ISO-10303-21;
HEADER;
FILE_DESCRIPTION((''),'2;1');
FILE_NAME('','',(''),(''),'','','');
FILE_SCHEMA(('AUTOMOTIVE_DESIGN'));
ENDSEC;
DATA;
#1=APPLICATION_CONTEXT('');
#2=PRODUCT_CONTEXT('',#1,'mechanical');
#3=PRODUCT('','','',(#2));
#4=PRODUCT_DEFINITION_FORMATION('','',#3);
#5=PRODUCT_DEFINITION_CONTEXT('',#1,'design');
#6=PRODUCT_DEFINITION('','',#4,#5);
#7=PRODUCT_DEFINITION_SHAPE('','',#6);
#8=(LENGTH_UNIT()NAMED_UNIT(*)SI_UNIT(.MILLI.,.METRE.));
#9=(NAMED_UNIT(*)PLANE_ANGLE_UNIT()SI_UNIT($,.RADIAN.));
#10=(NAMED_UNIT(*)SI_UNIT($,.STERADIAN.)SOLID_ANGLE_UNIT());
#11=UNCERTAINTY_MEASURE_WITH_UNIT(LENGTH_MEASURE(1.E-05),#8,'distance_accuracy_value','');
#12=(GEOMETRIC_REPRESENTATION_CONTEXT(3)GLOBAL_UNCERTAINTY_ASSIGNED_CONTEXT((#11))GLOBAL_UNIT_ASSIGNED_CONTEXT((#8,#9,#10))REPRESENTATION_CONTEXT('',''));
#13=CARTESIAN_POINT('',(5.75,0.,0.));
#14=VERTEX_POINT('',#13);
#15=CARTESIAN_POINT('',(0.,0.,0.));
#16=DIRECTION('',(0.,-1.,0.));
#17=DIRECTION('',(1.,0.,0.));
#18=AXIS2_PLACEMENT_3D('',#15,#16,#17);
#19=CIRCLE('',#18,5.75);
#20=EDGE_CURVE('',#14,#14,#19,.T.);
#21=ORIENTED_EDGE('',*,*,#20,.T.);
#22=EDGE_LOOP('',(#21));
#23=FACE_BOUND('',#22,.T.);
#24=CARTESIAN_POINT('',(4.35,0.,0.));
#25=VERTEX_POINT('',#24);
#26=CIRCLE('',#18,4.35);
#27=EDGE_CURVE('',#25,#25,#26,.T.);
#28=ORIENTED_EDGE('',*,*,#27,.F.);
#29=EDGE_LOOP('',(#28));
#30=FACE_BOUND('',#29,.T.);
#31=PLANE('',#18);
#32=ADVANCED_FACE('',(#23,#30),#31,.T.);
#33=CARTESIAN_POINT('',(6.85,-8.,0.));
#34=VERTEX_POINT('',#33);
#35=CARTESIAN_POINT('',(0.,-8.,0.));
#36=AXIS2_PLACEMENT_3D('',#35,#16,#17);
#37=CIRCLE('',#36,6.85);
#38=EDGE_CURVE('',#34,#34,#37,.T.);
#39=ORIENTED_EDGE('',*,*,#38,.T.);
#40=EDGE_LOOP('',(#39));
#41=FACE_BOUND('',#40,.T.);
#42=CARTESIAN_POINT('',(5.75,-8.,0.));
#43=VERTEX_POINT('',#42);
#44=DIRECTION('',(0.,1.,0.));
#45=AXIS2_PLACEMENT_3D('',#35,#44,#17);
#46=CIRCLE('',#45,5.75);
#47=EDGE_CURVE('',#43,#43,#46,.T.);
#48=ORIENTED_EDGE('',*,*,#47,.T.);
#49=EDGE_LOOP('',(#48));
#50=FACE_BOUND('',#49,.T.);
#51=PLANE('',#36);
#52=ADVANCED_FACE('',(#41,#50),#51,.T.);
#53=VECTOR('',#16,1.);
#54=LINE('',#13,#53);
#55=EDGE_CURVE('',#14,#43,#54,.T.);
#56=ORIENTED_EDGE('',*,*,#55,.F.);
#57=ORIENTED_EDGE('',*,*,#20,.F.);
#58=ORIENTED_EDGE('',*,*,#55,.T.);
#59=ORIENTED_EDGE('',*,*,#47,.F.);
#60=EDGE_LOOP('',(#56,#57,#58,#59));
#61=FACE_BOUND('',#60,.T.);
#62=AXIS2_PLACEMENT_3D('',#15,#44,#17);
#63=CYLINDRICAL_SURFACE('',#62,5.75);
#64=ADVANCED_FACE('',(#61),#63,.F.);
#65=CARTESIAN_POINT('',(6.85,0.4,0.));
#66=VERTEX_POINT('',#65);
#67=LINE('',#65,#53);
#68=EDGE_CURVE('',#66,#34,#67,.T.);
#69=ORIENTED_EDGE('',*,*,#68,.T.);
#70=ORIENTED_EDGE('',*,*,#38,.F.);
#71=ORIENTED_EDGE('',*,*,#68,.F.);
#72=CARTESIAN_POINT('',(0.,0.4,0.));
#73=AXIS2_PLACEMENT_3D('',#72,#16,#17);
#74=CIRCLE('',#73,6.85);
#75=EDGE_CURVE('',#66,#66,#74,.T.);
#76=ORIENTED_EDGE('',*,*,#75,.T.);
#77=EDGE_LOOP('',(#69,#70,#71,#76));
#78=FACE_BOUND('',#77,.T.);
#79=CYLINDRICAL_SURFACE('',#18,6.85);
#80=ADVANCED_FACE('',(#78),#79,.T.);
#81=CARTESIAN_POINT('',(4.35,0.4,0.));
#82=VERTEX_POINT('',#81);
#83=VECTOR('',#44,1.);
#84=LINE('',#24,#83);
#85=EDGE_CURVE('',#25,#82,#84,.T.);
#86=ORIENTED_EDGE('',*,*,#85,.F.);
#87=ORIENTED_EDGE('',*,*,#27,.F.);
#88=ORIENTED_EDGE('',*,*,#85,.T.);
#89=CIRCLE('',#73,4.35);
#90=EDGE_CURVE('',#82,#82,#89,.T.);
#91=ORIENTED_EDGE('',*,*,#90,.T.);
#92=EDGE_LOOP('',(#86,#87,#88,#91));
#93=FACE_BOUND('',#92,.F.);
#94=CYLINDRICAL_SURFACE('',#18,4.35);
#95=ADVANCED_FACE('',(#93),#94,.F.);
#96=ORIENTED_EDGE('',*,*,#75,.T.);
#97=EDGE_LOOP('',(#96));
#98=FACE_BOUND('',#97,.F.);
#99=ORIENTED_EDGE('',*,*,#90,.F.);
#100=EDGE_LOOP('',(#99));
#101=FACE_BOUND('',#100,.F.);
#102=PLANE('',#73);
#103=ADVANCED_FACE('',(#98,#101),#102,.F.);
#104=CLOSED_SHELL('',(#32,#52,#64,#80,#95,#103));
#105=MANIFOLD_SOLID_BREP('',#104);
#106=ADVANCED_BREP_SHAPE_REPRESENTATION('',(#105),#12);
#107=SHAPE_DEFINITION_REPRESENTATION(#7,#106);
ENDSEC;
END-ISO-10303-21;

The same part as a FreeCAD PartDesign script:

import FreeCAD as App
import Part
import Sketcher
from FreeCAD import Vector
Q = App.Units.Quantity

doc = App.newDocument("Part")
body = doc.addObject("PartDesign::Body", "Body")

# Sketch on XZ plane
sketch1 = body.newObject("Sketcher::SketchObject", "Sketch")
sketch1.AttachmentSupport = (doc.getObject("XZ_Plane"), [""])
sketch1.MapMode = "FlatFace"
sketch1.addGeometry(Part.Circle(Vector(0, 0, 0), Vector(0, 0, 1), 7), False)
sketch1.addConstraint(Sketcher.Constraint("Coincident", 0, 3, -1, 1))
sketch1.addConstraint(Sketcher.Constraint("Diameter", 0, Q("13.7 mm")))
pad1 = body.newObject("PartDesign::Pad", "Pad")
pad1.Profile = sketch1
pad1.Length = 8

# Sketch on XZ plane
sketch2 = body.newObject("Sketcher::SketchObject", "Sketch001")
sketch2.AttachmentSupport = (doc.getObject("XZ_Plane"), [""])
sketch2.MapMode = "FlatFace"
sketch2.addGeometry(Part.Circle(Vector(0, 0, 0), Vector(0, 0, 1), 6), False)
sketch2.addConstraint(Sketcher.Constraint("Coincident", 0, 3, -1, 1))
sketch2.addConstraint(Sketcher.Constraint("Diameter", 0, Q("11.5 mm")))
pocket1 = body.newObject("PartDesign::Pocket", "Pocket")
pocket1.Profile = sketch2
pocket1.Length = 25
pocket1.Reversed = True

# Sketch on XZ plane
sketch3 = body.newObject("Sketcher::SketchObject", "Sketch002")
sketch3.AttachmentSupport = (doc.getObject("XZ_Plane"), [""])
sketch3.MapMode = "FlatFace"
sketch3.addGeometry(Part.Circle(Vector(0, 0, 0), Vector(0, 0, 1), 6.8), False)
sketch3.addGeometry(Part.Circle(Vector(0, 0, 0), Vector(0, 0, 1), 4.3), False)
sketch3.addConstraint(Sketcher.Constraint("Coincident", 0, 3, -1, 1))
sketch3.addConstraint(Sketcher.Constraint("Coincident", 1, 3, -1, 1))
sketch3.addConstraint(Sketcher.Constraint("Diameter", 0, Q("13.7 mm")))
sketch3.addConstraint(Sketcher.Constraint("Diameter", 1, Q("8.7 mm")))
pad2 = body.newObject("PartDesign::Pad", "Pad001")
pad2.Profile = sketch3
pad2.Length = 0.4
pad2.Reversed = True

doc.recompute()
